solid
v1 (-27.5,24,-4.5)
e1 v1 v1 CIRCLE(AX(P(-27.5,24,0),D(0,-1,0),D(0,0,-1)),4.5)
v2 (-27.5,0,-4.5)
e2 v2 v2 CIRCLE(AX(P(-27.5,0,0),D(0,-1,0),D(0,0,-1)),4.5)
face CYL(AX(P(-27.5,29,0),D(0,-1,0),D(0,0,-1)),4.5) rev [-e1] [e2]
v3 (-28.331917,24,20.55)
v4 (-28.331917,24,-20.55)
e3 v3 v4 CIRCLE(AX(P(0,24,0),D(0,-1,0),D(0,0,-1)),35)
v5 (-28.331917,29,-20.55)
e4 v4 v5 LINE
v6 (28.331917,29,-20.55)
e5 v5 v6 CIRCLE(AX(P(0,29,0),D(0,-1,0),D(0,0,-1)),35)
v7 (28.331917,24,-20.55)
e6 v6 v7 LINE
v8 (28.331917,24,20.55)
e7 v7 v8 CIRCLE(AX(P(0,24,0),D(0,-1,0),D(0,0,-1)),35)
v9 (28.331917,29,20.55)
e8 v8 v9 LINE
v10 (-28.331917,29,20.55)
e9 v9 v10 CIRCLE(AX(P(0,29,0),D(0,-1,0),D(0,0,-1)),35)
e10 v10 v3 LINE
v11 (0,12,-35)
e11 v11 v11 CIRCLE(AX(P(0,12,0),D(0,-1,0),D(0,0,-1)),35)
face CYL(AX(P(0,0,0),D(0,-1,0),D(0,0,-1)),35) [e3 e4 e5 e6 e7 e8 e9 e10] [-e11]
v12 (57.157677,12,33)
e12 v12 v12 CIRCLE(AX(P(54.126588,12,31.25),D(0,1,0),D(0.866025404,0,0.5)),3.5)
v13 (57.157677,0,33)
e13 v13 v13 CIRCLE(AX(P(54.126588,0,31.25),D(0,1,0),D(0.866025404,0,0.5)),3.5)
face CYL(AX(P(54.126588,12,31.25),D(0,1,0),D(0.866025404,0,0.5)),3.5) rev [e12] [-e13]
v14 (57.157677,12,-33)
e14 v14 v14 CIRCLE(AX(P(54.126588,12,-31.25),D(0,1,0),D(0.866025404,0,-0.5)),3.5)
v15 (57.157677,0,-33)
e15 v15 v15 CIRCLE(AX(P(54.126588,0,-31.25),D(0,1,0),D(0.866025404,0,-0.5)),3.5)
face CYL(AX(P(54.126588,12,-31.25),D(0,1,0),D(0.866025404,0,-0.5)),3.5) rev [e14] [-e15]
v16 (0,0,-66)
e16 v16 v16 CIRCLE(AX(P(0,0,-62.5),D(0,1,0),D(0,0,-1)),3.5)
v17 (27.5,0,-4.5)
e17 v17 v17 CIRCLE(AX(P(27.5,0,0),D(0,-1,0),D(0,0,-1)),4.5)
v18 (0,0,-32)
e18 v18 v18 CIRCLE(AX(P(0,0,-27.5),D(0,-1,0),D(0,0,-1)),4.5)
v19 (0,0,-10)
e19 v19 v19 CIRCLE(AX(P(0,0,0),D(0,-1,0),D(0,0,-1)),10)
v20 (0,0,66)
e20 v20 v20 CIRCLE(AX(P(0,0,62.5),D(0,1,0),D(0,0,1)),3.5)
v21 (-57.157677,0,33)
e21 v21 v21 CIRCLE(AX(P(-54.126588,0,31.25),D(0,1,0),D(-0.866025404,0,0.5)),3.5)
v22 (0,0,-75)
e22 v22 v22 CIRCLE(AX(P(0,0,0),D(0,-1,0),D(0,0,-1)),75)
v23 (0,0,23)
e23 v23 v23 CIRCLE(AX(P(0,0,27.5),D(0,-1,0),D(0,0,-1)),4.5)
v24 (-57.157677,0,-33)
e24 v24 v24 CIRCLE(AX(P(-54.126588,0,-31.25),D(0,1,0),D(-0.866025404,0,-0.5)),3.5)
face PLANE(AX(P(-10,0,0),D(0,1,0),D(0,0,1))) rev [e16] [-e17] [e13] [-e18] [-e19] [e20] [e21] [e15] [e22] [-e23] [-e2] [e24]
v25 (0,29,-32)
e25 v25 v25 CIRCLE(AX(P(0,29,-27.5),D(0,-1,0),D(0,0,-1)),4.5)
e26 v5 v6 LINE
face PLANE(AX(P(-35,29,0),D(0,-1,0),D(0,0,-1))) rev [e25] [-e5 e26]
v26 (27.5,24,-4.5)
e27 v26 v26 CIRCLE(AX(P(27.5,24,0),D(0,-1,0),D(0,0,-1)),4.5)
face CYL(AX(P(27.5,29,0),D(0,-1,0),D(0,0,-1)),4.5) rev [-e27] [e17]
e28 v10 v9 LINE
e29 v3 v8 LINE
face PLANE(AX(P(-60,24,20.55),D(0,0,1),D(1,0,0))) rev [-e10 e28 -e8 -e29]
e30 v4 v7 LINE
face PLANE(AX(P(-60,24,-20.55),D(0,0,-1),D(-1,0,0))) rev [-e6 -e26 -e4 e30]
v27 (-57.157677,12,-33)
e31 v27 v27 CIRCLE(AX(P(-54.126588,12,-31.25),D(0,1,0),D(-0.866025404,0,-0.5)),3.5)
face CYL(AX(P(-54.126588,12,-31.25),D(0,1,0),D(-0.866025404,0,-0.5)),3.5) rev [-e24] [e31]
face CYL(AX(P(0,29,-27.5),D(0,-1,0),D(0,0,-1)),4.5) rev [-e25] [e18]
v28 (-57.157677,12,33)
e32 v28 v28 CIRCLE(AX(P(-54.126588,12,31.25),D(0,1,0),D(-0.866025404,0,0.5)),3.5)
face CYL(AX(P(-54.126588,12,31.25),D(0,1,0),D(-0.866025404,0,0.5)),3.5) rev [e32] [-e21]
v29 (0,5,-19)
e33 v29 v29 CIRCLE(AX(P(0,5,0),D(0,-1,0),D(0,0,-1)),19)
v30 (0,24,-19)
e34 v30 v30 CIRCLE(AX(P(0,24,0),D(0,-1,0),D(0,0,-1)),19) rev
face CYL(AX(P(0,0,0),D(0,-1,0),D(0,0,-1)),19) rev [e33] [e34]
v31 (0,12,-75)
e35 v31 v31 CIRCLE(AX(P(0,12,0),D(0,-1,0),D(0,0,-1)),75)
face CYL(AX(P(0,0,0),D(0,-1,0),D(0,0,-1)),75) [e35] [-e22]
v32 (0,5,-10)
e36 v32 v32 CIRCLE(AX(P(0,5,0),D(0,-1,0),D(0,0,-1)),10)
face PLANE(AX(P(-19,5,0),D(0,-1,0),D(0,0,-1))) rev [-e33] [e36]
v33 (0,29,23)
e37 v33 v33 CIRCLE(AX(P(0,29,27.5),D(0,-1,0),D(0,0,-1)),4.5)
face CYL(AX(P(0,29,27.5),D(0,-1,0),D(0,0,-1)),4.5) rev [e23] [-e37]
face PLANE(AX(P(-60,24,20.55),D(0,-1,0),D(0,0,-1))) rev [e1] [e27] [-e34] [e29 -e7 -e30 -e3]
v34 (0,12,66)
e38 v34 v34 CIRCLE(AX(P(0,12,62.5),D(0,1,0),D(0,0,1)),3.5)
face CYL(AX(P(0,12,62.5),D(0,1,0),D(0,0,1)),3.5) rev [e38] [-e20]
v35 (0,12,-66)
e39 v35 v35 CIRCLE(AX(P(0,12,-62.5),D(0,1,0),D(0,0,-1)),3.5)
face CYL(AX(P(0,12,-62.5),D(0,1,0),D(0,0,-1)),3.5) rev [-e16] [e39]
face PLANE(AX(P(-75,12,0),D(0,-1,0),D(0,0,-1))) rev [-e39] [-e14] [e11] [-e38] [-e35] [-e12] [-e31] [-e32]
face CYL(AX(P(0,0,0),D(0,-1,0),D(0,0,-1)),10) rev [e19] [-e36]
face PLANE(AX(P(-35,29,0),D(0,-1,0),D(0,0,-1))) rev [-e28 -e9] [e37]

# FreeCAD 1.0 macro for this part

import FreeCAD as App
import Part
import Sketcher
from FreeCAD import Vector
Q = App.Units.Quantity


def add_polygon(sketch, points):
    """Adds a closed chain of lines whose ends are joined by coincident constraints."""
    first, n = sketch.GeometryCount, len(points)
    for a, b in zip(points, points[1:] + points[:1]):
        sketch.addGeometry(Part.LineSegment(App.Vector(*a, 0), App.Vector(*b, 0)), False)
    for i in range(n):
        sketch.addConstraint(Sketcher.Constraint("Coincident", first + i, 2, first + (i + 1) % n, 1))

doc = App.newDocument("Part")
body = doc.addObject("PartDesign::Body", "Body")

# Sketch on XY plane
sketch1 = body.newObject("Sketcher::SketchObject", "Sketch")
sketch1.AttachmentSupport = (doc.getObject("XY_Plane"), [""])
sketch1.MapMode = "FlatFace"
add_polygon(sketch1, [(-75, 0), (-10, 0), (-10, 5), (-19, 5), (-19, 29), (-35, 29), (-35, 12), (-75, 12)])  # lines 0-7
sketch1.addConstraint([
    Sketcher.Constraint("Horizontal", 0),
    Sketcher.Constraint("Vertical", 1),
    Sketcher.Constraint("Horizontal", 2),
    Sketcher.Constraint("Vertical", 3),
    Sketcher.Constraint("Horizontal", 4),
    Sketcher.Constraint("Vertical", 5),
    Sketcher.Constraint("Horizontal", 6),
    Sketcher.Constraint("Vertical", 7),
    Sketcher.Constraint("PointOnObject", 0, 2, -1),
    Sketcher.Constraint("DistanceX", 0, 1, 0, 2, Q("65 mm")),
    Sketcher.Constraint("DistanceX", 2, 2, 2, 1, Q("9 mm")),
    Sketcher.Constraint("DistanceX", 4, 2, 4, 1, Q("16 mm")),
    Sketcher.Constraint("DistanceY", 1, 1, 1, 2, Q("5 mm")),
    Sketcher.Constraint("DistanceY", 3, 1, 3, 2, Q("24 mm")),
    Sketcher.Constraint("DistanceY", 5, 2, 5, 1, Q("17 mm")),
    Sketcher.Constraint("DistanceX", 0, 2, -1, 1, Q("10 mm")),
])
revolution = body.newObject("PartDesign::Revolution", "Revolution")
revolution.Profile = sketch1
revolution.ReferenceAxis = (sketch1, ["V_Axis"])
revolution.Angle = 360

# Sketch on YZ plane
sketch2 = body.newObject("Sketcher::SketchObject", "Sketch001")
sketch2.AttachmentSupport = (doc.getObject("YZ_Plane"), [""])
sketch2.MapMode = "FlatFace"
add_polygon(sketch2, [(29, 21), (24, 21), (24, -21), (29, -21)])  # lines 0-3
sketch2.addConstraint([
    Sketcher.Constraint("Horizontal", 0),
    Sketcher.Constraint("Vertical", 1),
    Sketcher.Constraint("Horizontal", 2),
    Sketcher.Constraint("Vertical", 3),
    Sketcher.Constraint("DistanceX", 0, 2, 0, 1, Q("5 mm")),
    Sketcher.Constraint("DistanceY", 1, 2, 1, 1, Q("41.1 mm")),
    Sketcher.Constraint("DistanceX", -1, 1, 0, 2, Q("24 mm")),
    Sketcher.Constraint("DistanceY", -1, 1, 0, 2, Q("20.55 mm")),
])
pocket1 = body.newObject("PartDesign::Pocket", "Pocket")
pocket1.Profile = sketch2
pocket1.Length = 120
pocket1.Midplane = True

# Sketch on XZ plane
sketch3 = body.newObject("Sketcher::SketchObject", "Sketch002")
sketch3.AttachmentSupport = (doc.getObject("XZ_Plane"), [""])
sketch3.MapMode = "FlatFace"
sketch3.addGeometry([
    Part.Circle(Vector(-27.5, 0, 0), Vector(0, 0, 1), 4.5),
    Part.Circle(Vector(0, -27.5, 0), Vector(0, 0, 1), 4.5),
    Part.Circle(Vector(0, 27.5, 0), Vector(0, 0, 1), 4.5),
    Part.Circle(Vector(27.5, 0, 0), Vector(0, 0, 1), 4.5),
], False)
sketch3.addConstraint([
    Sketcher.Constraint("Equal", 0, 1),
    Sketcher.Constraint("Equal", 1, 2),
    Sketcher.Constraint("Equal", 2, 3),
    Sketcher.Constraint("Symmetric", 1, 3, 2, 3, -1, 1),
    Sketcher.Constraint("Symmetric", 0, 3, 3, 3, -1, 1),
    Sketcher.Constraint("PointOnObject", 0, 3, -1),
    Sketcher.Constraint("PointOnObject", 1, 3, -2),
    Sketcher.Constraint("Diameter", 0, Q("9 mm")),
    Sketcher.Constraint("DistanceY", 1, 3, 2, 3, Q("55 mm")),
    Sketcher.Constraint("DistanceX", 0, 3, 3, 3, Q("55 mm")),
])
pocket2 = body.newObject("PartDesign::Pocket", "Pocket001")
pocket2.Profile = sketch3
pocket2.Type = "ThroughAll"

# Sketch on YZ plane
sketch4 = body.newObject("Sketcher::SketchObject", "Sketch003")
sketch4.AttachmentSupport = (doc.getObject("YZ_Plane"), [""])
sketch4.MapMode = "FlatFace"
add_polygon(sketch4, [(-11.1, 62.5), (12, 62.5), (12, 66), (-9, 66)])  # lines 0-3
sketch4.addGeometry(Part.LineSegment(Vector(12, 62.5, 0), Vector(-11.1, 62.5, 0)), True)  # axis
sketch4.addConstraint([
    Sketcher.Constraint("Horizontal", 0),
    Sketcher.Constraint("Vertical", 1),
    Sketcher.Constraint("Horizontal", 2),
    Sketcher.Constraint("Horizontal", 4),
    Sketcher.Constraint("Coincident", 4, 1, 0, 2),
    Sketcher.Constraint("Equal", 0, 4),
    Sketcher.Constraint("DistanceX", 2, 2, 2, 1, Q("21 mm")),
    Sketcher.Constraint("Angle", 3, Q("-121 deg")),
    Sketcher.Constraint("DistanceY", 1, 1, 1, 2, Q("3.5 mm")),
    Sketcher.Constraint("DistanceX", -1, 1, 0, 2, Q("12 mm")),
    Sketcher.Constraint("DistanceY", -1, 1, 1, 2, Q("66 mm")),
])
groove = body.newObject("PartDesign::Groove", "Groove")
groove.Profile = sketch4
groove.ReferenceAxis = (sketch4, ["Axis0"])
groove.Angle = 360
doc.recompute()

polarpattern = body.newObject("PartDesign::PolarPattern", "PolarPattern")
polarpattern.Originals = [groove]
polarpattern.Axis = (doc.getObject("Y_Axis"), [""])
polarpattern.Angle = 360
polarpattern.Occurrences = 6
body.Tip = polarpattern

doc.recompute()
